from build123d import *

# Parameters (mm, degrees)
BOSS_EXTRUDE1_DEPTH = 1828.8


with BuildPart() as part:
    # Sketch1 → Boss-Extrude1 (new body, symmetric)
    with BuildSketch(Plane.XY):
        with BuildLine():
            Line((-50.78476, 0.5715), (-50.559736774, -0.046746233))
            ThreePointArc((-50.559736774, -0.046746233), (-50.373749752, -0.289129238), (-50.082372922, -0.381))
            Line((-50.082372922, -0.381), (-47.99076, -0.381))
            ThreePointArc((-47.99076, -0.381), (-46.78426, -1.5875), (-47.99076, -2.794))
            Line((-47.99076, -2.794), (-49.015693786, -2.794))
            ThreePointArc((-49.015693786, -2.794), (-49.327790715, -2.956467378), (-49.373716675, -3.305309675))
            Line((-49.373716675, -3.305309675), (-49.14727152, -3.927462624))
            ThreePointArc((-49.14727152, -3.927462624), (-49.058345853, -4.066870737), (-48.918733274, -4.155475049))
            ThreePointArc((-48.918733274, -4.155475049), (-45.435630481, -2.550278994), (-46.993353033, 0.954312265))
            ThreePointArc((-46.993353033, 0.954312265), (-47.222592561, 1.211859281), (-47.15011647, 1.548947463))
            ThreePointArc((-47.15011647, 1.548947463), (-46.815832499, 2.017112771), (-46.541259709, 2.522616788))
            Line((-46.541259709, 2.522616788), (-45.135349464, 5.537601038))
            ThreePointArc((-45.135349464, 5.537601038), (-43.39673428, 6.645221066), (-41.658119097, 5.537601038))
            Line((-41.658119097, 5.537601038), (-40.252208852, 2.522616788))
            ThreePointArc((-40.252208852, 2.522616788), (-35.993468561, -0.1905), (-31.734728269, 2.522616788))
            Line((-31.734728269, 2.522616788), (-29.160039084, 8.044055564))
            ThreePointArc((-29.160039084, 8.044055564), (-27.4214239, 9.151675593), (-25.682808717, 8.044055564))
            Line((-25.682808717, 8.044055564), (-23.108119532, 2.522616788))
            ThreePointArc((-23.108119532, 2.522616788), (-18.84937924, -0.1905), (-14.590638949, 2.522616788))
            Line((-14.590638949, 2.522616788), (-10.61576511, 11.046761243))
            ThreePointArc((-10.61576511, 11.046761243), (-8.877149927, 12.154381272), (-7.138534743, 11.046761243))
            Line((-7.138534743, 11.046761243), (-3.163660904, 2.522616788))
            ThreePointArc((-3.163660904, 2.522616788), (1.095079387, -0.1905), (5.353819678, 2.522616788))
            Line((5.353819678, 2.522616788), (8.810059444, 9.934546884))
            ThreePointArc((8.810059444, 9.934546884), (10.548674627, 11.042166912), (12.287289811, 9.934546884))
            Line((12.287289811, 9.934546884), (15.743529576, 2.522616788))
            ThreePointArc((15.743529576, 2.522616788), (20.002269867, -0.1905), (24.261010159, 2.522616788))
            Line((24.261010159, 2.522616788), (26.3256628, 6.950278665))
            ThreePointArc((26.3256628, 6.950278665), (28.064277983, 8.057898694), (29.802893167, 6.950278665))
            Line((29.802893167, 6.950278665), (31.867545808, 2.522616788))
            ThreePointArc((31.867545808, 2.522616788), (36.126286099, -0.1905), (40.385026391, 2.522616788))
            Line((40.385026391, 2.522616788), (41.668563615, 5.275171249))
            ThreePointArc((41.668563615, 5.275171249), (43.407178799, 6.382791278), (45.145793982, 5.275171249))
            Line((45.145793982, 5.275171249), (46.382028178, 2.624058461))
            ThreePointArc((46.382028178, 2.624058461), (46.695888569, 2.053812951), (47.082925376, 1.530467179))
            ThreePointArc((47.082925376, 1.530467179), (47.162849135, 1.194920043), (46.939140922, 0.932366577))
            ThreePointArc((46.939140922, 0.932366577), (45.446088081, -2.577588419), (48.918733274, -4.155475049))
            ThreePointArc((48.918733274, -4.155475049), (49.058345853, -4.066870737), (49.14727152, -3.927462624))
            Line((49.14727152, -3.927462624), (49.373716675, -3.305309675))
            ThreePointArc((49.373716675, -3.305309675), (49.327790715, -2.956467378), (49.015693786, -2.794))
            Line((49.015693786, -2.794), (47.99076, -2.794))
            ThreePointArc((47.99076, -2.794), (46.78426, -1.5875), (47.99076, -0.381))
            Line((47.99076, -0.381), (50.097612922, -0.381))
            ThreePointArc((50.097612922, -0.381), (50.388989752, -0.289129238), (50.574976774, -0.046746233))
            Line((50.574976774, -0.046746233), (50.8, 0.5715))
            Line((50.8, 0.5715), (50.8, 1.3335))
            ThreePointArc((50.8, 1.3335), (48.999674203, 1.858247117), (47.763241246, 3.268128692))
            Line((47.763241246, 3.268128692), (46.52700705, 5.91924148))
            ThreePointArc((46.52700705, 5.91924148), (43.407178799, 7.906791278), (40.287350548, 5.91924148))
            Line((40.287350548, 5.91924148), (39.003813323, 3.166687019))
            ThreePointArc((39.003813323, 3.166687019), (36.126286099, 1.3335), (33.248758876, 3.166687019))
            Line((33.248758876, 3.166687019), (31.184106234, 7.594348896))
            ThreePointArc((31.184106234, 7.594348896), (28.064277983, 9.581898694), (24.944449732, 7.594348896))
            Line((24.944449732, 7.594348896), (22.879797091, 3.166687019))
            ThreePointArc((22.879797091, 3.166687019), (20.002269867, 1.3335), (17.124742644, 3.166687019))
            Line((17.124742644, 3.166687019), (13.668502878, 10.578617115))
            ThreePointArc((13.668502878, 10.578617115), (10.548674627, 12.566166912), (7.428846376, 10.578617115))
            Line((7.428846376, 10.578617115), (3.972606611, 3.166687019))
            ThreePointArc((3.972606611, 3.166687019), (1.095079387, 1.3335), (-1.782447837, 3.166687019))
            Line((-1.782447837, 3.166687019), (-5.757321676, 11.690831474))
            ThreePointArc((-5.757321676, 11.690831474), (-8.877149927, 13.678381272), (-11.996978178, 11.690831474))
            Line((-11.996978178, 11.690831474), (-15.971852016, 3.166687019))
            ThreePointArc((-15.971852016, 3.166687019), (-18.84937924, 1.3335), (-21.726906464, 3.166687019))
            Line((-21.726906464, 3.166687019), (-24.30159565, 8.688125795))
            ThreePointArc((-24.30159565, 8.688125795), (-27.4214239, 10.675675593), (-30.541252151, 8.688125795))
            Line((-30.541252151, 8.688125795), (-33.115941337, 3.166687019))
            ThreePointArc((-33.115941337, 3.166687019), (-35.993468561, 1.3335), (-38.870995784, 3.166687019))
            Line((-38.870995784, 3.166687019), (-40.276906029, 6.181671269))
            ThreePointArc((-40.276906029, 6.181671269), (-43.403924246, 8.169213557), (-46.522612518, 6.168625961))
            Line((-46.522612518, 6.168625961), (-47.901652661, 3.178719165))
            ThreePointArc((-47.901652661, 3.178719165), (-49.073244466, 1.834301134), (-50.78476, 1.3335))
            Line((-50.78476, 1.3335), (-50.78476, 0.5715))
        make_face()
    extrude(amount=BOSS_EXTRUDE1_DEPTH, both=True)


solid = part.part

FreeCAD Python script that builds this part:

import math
import FreeCAD as App
import Part
import Sketcher
from FreeCAD import Vector
Q = App.Units.Quantity

doc = App.newDocument("Part")
body = doc.addObject("PartDesign::Body", "Body")

# Sketch on XY plane
sketch1 = body.newObject("Sketcher::SketchObject", "Sketch")
sketch1.AttachmentSupport = (doc.getObject("XY_Plane"), [""])
sketch1.MapMode = "FlatFace"
sketch1.addGeometry(Part.LineSegment(Vector(-50.78, 0.57, 0), Vector(-50.56, -0.05, 0)), False)
sketch1.addGeometry(Part.ArcOfCircle(Part.Circle(Vector(-50.08, 0.13, 0), Vector(0, 0, 1), 0.51), math.radians(-160), math.radians(-90)), False)
sketch1.addGeometry(Part.LineSegment(Vector(-50.08, -0.38, 0), Vector(-47.99, -0.38, 0)), False)
sketch1.addGeometry(Part.ArcOfCircle(Part.Circle(Vector(-47.99, -1.59, 0), Vector(0, 0, 1), 1.21), math.radians(-90), math.radians(90)), False)
sketch1.addGeometry(Part.LineSegment(Vector(-47.99, -2.79, 0), Vector(-49.02, -2.79, 0)), False)
sketch1.addGeometry(Part.ArcOfCircle(Part.Circle(Vector(-49.02, -3.18, 0), Vector(0, 0, 1), 0.38), math.radians(90), math.radians(200)), False)
sketch1.addGeometry(Part.LineSegment(Vector(-49.37, -3.31, 0), Vector(-49.15, -3.93, 0)), False)
sketch1.addGeometry(Part.ArcOfCircle(Part.Circle(Vector(-48.79, -3.8, 0), Vector(0, 0, 1), 0.38), math.radians(-160), math.radians(-110)), False)
sketch1.addGeometry(Part.ArcOfCircle(Part.Circle(Vector(-47.99, -1.59, 0), Vector(0, 0, 1), 2.73), math.radians(-110), math.radians(69)), False)
sketch1.addGeometry(Part.ArcOfCircle(Part.Circle(Vector(-46.85, 1.31, 0), Vector(0, 0, 1), 0.38), math.radians(141), math.radians(249)), False)
sketch1.addGeometry(Part.ArcOfCircle(Part.Circle(Vector(-50.8, 4.51, 0), Vector(0, 0, 1), 4.7), math.radians(-39.04), math.radians(-25)), False)
sketch1.addGeometry(Part.LineSegment(Vector(-46.54, 2.52, 0), Vector(-45.14, 5.54, 0)), False)
sketch1.addGeometry(Part.ArcOfCircle(Part.Circle(Vector(-43.4, 4.73, 0), Vector(0, 0, 1), 1.92), math.radians(25), math.radians(155)), False)
sketch1.addGeometry(Part.LineSegment(Vector(-41.66, 5.54, 0), Vector(-40.25, 2.52, 0)), False)
sketch1.addGeometry(Part.ArcOfCircle(Part.Circle(Vector(-35.99, 4.51, 0), Vector(0, 0, 1), 4.7), math.radians(-155), math.radians(-25)), False)
sketch1.addGeometry(Part.LineSegment(Vector(-31.73, 2.52, 0), Vector(-29.16, 8.04, 0)), False)
sketch1.addGeometry(Part.ArcOfCircle(Part.Circle(Vector(-27.42, 7.23, 0), Vector(0, 0, 1), 1.92), math.radians(25), math.radians(155)), False)
sketch1.addGeometry(Part.LineSegment(Vector(-25.68, 8.04, 0), Vector(-23.11, 2.52, 0)), False)
sketch1.addGeometry(Part.ArcOfCircle(Part.Circle(Vector(-18.85, 4.51, 0), Vector(0, 0, 1), 4.7), math.radians(-155), math.radians(-25)), False)
sketch1.addGeometry(Part.LineSegment(Vector(-14.59, 2.52, 0), Vector(-10.62, 11.05, 0)), False)
sketch1.addGeometry(Part.ArcOfCircle(Part.Circle(Vector(-8.88, 10.24, 0), Vector(0, 0, 1), 1.92), math.radians(25), math.radians(155)), False)
sketch1.addGeometry(Part.LineSegment(Vector(-7.14, 11.05, 0), Vector(-3.16, 2.52, 0)), False)
sketch1.addGeometry(Part.ArcOfCircle(Part.Circle(Vector(1.1, 4.51, 0), Vector(0, 0, 1), 4.7), math.radians(-155), math.radians(-25)), False)
sketch1.addGeometry(Part.LineSegment(Vector(5.35, 2.52, 0), Vector(8.81, 9.93, 0)), False)
sketch1.addGeometry(Part.ArcOfCircle(Part.Circle(Vector(10.55, 9.12, 0), Vector(0, 0, 1), 1.92), math.radians(25), math.radians(155)), False)
sketch1.addGeometry(Part.LineSegment(Vector(12.29, 9.93, 0), Vector(15.74, 2.52, 0)), False)
sketch1.addGeometry(Part.ArcOfCircle(Part.Circle(Vector(20, 4.51, 0), Vector(0, 0, 1), 4.7), math.radians(-155), math.radians(-25)), False)
sketch1.addGeometry(Part.LineSegment(Vector(24.26, 2.52, 0), Vector(26.33, 6.95, 0)), False)
sketch1.addGeometry(Part.ArcOfCircle(Part.Circle(Vector(28.06, 6.14, 0), Vector(0, 0, 1), 1.92), math.radians(25), math.radians(155)), False)
sketch1.addGeometry(Part.LineSegment(Vector(29.8, 6.95, 0), Vector(31.87, 2.52, 0)), False)
sketch1.addGeometry(Part.ArcOfCircle(Part.Circle(Vector(36.13, 4.51, 0), Vector(0, 0, 1), 4.7), math.radians(-155), math.radians(-25)), False)
sketch1.addGeometry(Part.LineSegment(Vector(40.39, 2.52, 0), Vector(41.67, 5.28, 0)), False)
sketch1.addGeometry(Part.ArcOfCircle(Part.Circle(Vector(43.41, 4.46, 0), Vector(0, 0, 1), 1.92), math.radians(25), math.radians(155)), False)
sketch1.addGeometry(Part.LineSegment(Vector(45.15, 5.28, 0), Vector(46.38, 2.62, 0)), False)
sketch1.addGeometry(Part.ArcOfCircle(Part.Circle(Vector(50.8, 4.68, 0), Vector(0, 0, 1), 4.87), math.radians(-155), math.radians(-139.69)), False)
sketch1.addGeometry(Part.ArcOfCircle(Part.Circle(Vector(46.79, 1.28, 0), Vector(0, 0, 1), 0.38), math.radians(-67), math.radians(40)), False)
sketch1.addGeometry(Part.ArcOfCircle(Part.Circle(Vector(47.99, -1.59, 0), Vector(0, 0, 1), 2.73), math.radians(113), math.radians(290)), False)
sketch1.addGeometry(Part.ArcOfCircle(Part.Circle(Vector(48.79, -3.8, 0), Vector(0, 0, 1), 0.38), math.radians(-70), math.radians(-20)), False)
sketch1.addGeometry(Part.LineSegment(Vector(49.15, -3.93, 0), Vector(49.37, -3.31, 0)), False)
sketch1.addGeometry(Part.ArcOfCircle(Part.Circle(Vector(49.02, -3.18, 0), Vector(0, 0, 1), 0.38), math.radians(-20), math.radians(90)), False)
sketch1.addGeometry(Part.LineSegment(Vector(49.02, -2.79, 0), Vector(47.99, -2.79, 0)), False)
sketch1.addGeometry(Part.ArcOfCircle(Part.Circle(Vector(47.99, -1.59, 0), Vector(0, 0, 1), 1.21), math.radians(90), math.radians(270)), False)
sketch1.addGeometry(Part.LineSegment(Vector(47.99, -0.38, 0), Vector(50.1, -0.38, 0)), False)
sketch1.addGeometry(Part.ArcOfCircle(Part.Circle(Vector(50.1, 0.13, 0), Vector(0, 0, 1), 0.51), math.radians(-90), math.radians(-20)), False)
sketch1.addGeometry(Part.LineSegment(Vector(50.57, -0.05, 0), Vector(50.8, 0.57, 0)), False)
sketch1.addGeometry(Part.LineSegment(Vector(50.8, 0.57, 0), Vector(50.8, 1.33, 0)), False)
sketch1.addGeometry(Part.ArcOfCircle(Part.Circle(Vector(50.8, 4.68, 0), Vector(0, 0, 1), 3.35), math.radians(-155), math.radians(-90)), False)
sketch1.addGeometry(Part.LineSegment(Vector(47.76, 3.27, 0), Vector(46.53, 5.92, 0)), False)
sketch1.addGeometry(Part.ArcOfCircle(Part.Circle(Vector(43.41, 4.46, 0), Vector(0, 0, 1), 3.44), math.radians(25), math.radians(155)), False)
sketch1.addGeometry(Part.LineSegment(Vector(40.29, 5.92, 0), Vector(39, 3.17, 0)), False)
sketch1.addGeometry(Part.ArcOfCircle(Part.Circle(Vector(36.13, 4.51, 0), Vector(0, 0, 1), 3.17), math.radians(-155), math.radians(-25)), False)
sketch1.addGeometry(Part.LineSegment(Vector(33.25, 3.17, 0), Vector(31.18, 7.59, 0)), False)
sketch1.addGeometry(Part.ArcOfCircle(Part.Circle(Vector(28.06, 6.14, 0), Vector(0, 0, 1), 3.44), math.radians(25), math.radians(155)), False)
sketch1.addGeometry(Part.LineSegment(Vector(24.94, 7.59, 0), Vector(22.88, 3.17, 0)), False)
sketch1.addGeometry(Part.ArcOfCircle(Part.Circle(Vector(20, 4.51, 0), Vector(0, 0, 1), 3.17), math.radians(-155), math.radians(-25)), False)
sketch1.addGeometry(Part.LineSegment(Vector(17.12, 3.17, 0), Vector(13.67, 10.58, 0)), False)
sketch1.addGeometry(Part.ArcOfCircle(Part.Circle(Vector(10.55, 9.12, 0), Vector(0, 0, 1), 3.44), math.radians(25), math.radians(155)), False)
sketch1.addGeometry(Part.LineSegment(Vector(7.43, 10.58, 0), Vector(3.97, 3.17, 0)), False)
sketch1.addGeometry(Part.ArcOfCircle(Part.Circle(Vector(1.1, 4.51, 0), Vector(0, 0, 1), 3.17), math.radians(-155), math.radians(-25)), False)
sketch1.addGeometry(Part.LineSegment(Vector(-1.78, 3.17, 0), Vector(-5.76, 11.69, 0)), False)
sketch1.addGeometry(Part.ArcOfCircle(Part.Circle(Vector(-8.88, 10.24, 0), Vector(0, 0, 1), 3.44), math.radians(25), math.radians(155)), False)
sketch1.addGeometry(Part.LineSegment(Vector(-12, 11.69, 0), Vector(-15.97, 3.17, 0)), False)
sketch1.addGeometry(Part.ArcOfCircle(Part.Circle(Vector(-18.85, 4.51, 0), Vector(0, 0, 1), 3.17), math.radians(-155), math.radians(-25)), False)
sketch1.addGeometry(Part.LineSegment(Vector(-21.73, 3.17, 0), Vector(-24.3, 8.69, 0)), False)
sketch1.addGeometry(Part.ArcOfCircle(Part.Circle(Vector(-27.42, 7.23, 0), Vector(0, 0, 1), 3.44), math.radians(25), math.radians(155)), False)
sketch1.addGeometry(Part.LineSegment(Vector(-30.54, 8.69, 0), Vector(-33.12, 3.17, 0)), False)
sketch1.addGeometry(Part.ArcOfCircle(Part.Circle(Vector(-35.99, 4.51, 0), Vector(0, 0, 1), 3.17), math.radians(-155), math.radians(-25)), False)
sketch1.addGeometry(Part.LineSegment(Vector(-38.87, 3.17, 0), Vector(-40.28, 6.18, 0)), False)
sketch1.addGeometry(Part.ArcOfCircle(Part.Circle(Vector(-43.4, 4.73, 0), Vector(0, 0, 1), 3.44), math.radians(25), math.radians(155)), False)
sketch1.addGeometry(Part.LineSegment(Vector(-46.52, 6.17, 0), Vector(-47.9, 3.18, 0)), False)
sketch1.addGeometry(Part.ArcOfCircle(Part.Circle(Vector(-50.78, 4.51, 0), Vector(0, 0, 1), 3.17), math.radians(-90), math.radians(-25)), False)
sketch1.addGeometry(Part.LineSegment(Vector(-50.78, 1.33, 0), Vector(-50.78, 0.57, 0)), False)
sketch1.addConstraint(Sketcher.Constraint("Tangent", 0, 2, 1, 1))
sketch1.addConstraint(Sketcher.Constraint("Tangent", 1, 2, 2, 1))
sketch1.addConstraint(Sketcher.Constraint("Tangent", 2, 2, 3, 2))
sketch1.addConstraint(Sketcher.Constraint("Tangent", 3, 1, 4, 1))
sketch1.addConstraint(Sketcher.Constraint("Tangent", 4, 2, 5, 1))
sketch1.addConstraint(Sketcher.Constraint("Tangent", 5, 2, 6, 1))
sketch1.addConstraint(Sketcher.Constraint("Tangent", 6, 2, 7, 1))
sketch1.addConstraint(Sketcher.Constraint("Tangent", 7, 2, 8, 1))
sketch1.addConstraint(Sketcher.Constraint("Tangent", 8, 2, 9, 2))
sketch1.addConstraint(Sketcher.Constraint("Tangent", 9, 1, 10, 1))
sketch1.addConstraint(Sketcher.Constraint("Tangent", 10, 2, 11, 1))
sketch1.addConstraint(Sketcher.Constraint("Tangent", 11, 2, 12, 2))
sketch1.addConstraint(Sketcher.Constraint("Tangent", 12, 1, 13, 1))
sketch1.addConstraint(Sketcher.Constraint("Tangent", 13, 2, 14, 1))
sketch1.addConstraint(Sketcher.Constraint("Tangent", 14, 2, 15, 1))
sketch1.addConstraint(Sketcher.Constraint("Tangent", 15, 2, 16, 2))
sketch1.addConstraint(Sketcher.Constraint("Tangent", 16, 1, 17, 1))
sketch1.addConstraint(Sketcher.Constraint("Tangent", 17, 2, 18, 1))
sketch1.addConstraint(Sketcher.Constraint("Tangent", 18, 2, 19, 1))
sketch1.addConstraint(Sketcher.Constraint("Tangent", 19, 2, 20, 2))
sketch1.addConstraint(Sketcher.Constraint("Tangent", 20, 1, 21, 1))
sketch1.addConstraint(Sketcher.Constraint("Tangent", 21, 2, 22, 1))
sketch1.addConstraint(Sketcher.Constraint("Tangent", 22, 2, 23, 1))
sketch1.addConstraint(Sketcher.Constraint("Tangent", 23, 2, 24, 2))
sketch1.addConstraint(Sketcher.Constraint("Tangent", 24, 1, 25, 1))
sketch1.addConstraint(Sketcher.Constraint("Tangent", 25, 2, 26, 1))
sketch1.addConstraint(Sketcher.Constraint("Tangent", 26, 2, 27, 1))
sketch1.addConstraint(Sketcher.Constraint("Tangent", 27, 2, 28, 2))
sketch1.addConstraint(Sketcher.Constraint("Tangent", 28, 1, 29, 1))
sketch1.addConstraint(Sketcher.Constraint("Tangent", 29, 2, 30, 1))
sketch1.addConstraint(Sketcher.Constraint("Tangent", 30, 2, 31, 1))
sketch1.addConstraint(Sketcher.Constraint("Tangent", 31, 2, 32, 2))
sketch1.addConstraint(Sketcher.Constraint("Tangent", 32, 1, 33, 1))
sketch1.addConstraint(Sketcher.Constraint("Tangent", 33, 2, 34, 1))
sketch1.addConstraint(Sketcher.Constraint("Tangent", 34, 2, 35, 2))
sketch1.addConstraint(Sketcher.Constraint("Tangent", 35, 1, 36, 1))
sketch1.addConstraint(Sketcher.Constraint("Tangent", 36, 2, 37, 1))
sketch1.addConstraint(Sketcher.Constraint("Tangent", 37, 2, 38, 1))
sketch1.addConstraint(Sketcher.Constraint("Tangent", 38, 2, 39, 1))
sketch1.addConstraint(Sketcher.Constraint("Tangent", 39, 2, 40, 1))
sketch1.addConstraint(Sketcher.Constraint("Tangent", 40, 2, 41, 2))
sketch1.addConstraint(Sketcher.Constraint("Tangent", 41, 1, 42, 1))
sketch1.addConstraint(Sketcher.Constraint("Tangent", 42, 2, 43, 1))
sketch1.addConstraint(Sketcher.Constraint("Tangent", 43, 2, 44, 1))
sketch1.addConstraint(Sketcher.Constraint("Coincident", 44, 2, 45, 1))
sketch1.addConstraint(Sketcher.Constraint("Coincident", 45, 2, 46, 2))
sketch1.addConstraint(Sketcher.Constraint("Tangent", 46, 1, 47, 1))
sketch1.addConstraint(Sketcher.Constraint("Tangent", 47, 2, 48, 1))
sketch1.addConstraint(Sketcher.Constraint("Tangent", 48, 2, 49, 1))
sketch1.addConstraint(Sketcher.Constraint("Tangent", 49, 2, 50, 2))
sketch1.addConstraint(Sketcher.Constraint("Tangent", 50, 1, 51, 1))
sketch1.addConstraint(Sketcher.Constraint("Tangent", 51, 2, 52, 1))
sketch1.addConstraint(Sketcher.Constraint("Tangent", 52, 2, 53, 1))
sketch1.addConstraint(Sketcher.Constraint("Tangent", 53, 2, 54, 2))
sketch1.addConstraint(Sketcher.Constraint("Tangent", 54, 1, 55, 1))
sketch1.addConstraint(Sketcher.Constraint("Tangent", 55, 2, 56, 1))
sketch1.addConstraint(Sketcher.Constraint("Tangent", 56, 2, 57, 1))
sketch1.addConstraint(Sketcher.Constraint("Tangent", 57, 2, 58, 2))
sketch1.addConstraint(Sketcher.Constraint("Tangent", 58, 1, 59, 1))
sketch1.addConstraint(Sketcher.Constraint("Tangent", 59, 2, 60, 1))
sketch1.addConstraint(Sketcher.Constraint("Tangent", 60, 2, 61, 1))
sketch1.addConstraint(Sketcher.Constraint("Tangent", 61, 2, 62, 2))
sketch1.addConstraint(Sketcher.Constraint("Tangent", 62, 1, 63, 1))
sketch1.addConstraint(Sketcher.Constraint("Tangent", 63, 2, 64, 1))
sketch1.addConstraint(Sketcher.Constraint("Tangent", 64, 2, 65, 1))
sketch1.addConstraint(Sketcher.Constraint("Tangent", 65, 2, 66, 2))
sketch1.addConstraint(Sketcher.Constraint("Tangent", 66, 1, 67, 1))
sketch1.addConstraint(Sketcher.Constraint("Tangent", 67, 2, 68, 1))
sketch1.addConstraint(Sketcher.Constraint("Tangent", 68, 2, 69, 1))
sketch1.addConstraint(Sketcher.Constraint("Tangent", 69, 2, 70, 2))
sketch1.addConstraint(Sketcher.Constraint("Coincident", 70, 1, 71, 1))
sketch1.addConstraint(Sketcher.Constraint("Coincident", 71, 2, 0, 1))
sketch1.addConstraint(Sketcher.Constraint("Horizontal", 2))
sketch1.addConstraint(Sketcher.Constraint("Horizontal", 4))
sketch1.addConstraint(Sketcher.Constraint("Horizontal", 40))
sketch1.addConstraint(Sketcher.Constraint("Horizontal", 42))
sketch1.addConstraint(Sketcher.Constraint("Vertical", 45))
sketch1.addConstraint(Sketcher.Constraint("Vertical", 71))
sketch1.addConstraint(Sketcher.Constraint("Coincident", 8, 3, 3, 3))
sketch1.addConstraint(Sketcher.Constraint("Coincident", 41, 3, 36, 3))
sketch1.addConstraint(Sketcher.Constraint("Coincident", 46, 3, 34, 3))
sketch1.addConstraint(Sketcher.Constraint("Coincident", 48, 3, 32, 3))
sketch1.addConstraint(Sketcher.Constraint("Coincident", 50, 3, 30, 3))
sketch1.addConstraint(Sketcher.Constraint("Coincident", 52, 3, 28, 3))
sketch1.addConstraint(Sketcher.Constraint("Coincident", 54, 3, 26, 3))
sketch1.addConstraint(Sketcher.Constraint("Coincident", 56, 3, 24, 3))
sketch1.addConstraint(Sketcher.Constraint("Coincident", 58, 3, 22, 3))
sketch1.addConstraint(Sketcher.Constraint("Coincident", 60, 3, 20, 3))
sketch1.addConstraint(Sketcher.Constraint("Coincident", 62, 3, 18, 3))
sketch1.addConstraint(Sketcher.Constraint("Coincident", 64, 3, 16, 3))
sketch1.addConstraint(Sketcher.Constraint("Coincident", 66, 3, 14, 3))
sketch1.addConstraint(Sketcher.Constraint("Coincident", 68, 3, 12, 3))
sketch1.addConstraint(Sketcher.Constraint("Equal", 5, 7))
sketch1.addConstraint(Sketcher.Constraint("Equal", 7, 9))
sketch1.addConstraint(Sketcher.Constraint("Equal", 10, 14))
sketch1.addConstraint(Sketcher.Constraint("Equal", 12, 16))
sketch1.addConstraint(Sketcher.Constraint("Equal", 14, 18))
sketch1.addConstraint(Sketcher.Constraint("Equal", 16, 20))
sketch1.addConstraint(Sketcher.Constraint("Equal", 18, 22))
sketch1.addConstraint(Sketcher.Constraint("Equal", 20, 24))
sketch1.addConstraint(Sketcher.Constraint("Equal", 22, 26))
sketch1.addConstraint(Sketcher.Constraint("Equal", 24, 28))
sketch1.addConstraint(Sketcher.Constraint("Equal", 26, 30))
sketch1.addConstraint(Sketcher.Constraint("Equal", 28, 32))
sketch1.addConstraint(Sketcher.Constraint("Equal", 9, 35))
sketch1.addConstraint(Sketcher.Constraint("Equal", 8, 36))
sketch1.addConstraint(Sketcher.Constraint("Equal", 35, 37))
sketch1.addConstraint(Sketcher.Constraint("Equal", 37, 39))
sketch1.addConstraint(Sketcher.Constraint("Equal", 3, 41))
sketch1.addConstraint(Sketcher.Constraint("Equal", 1, 43))
sketch1.addConstraint(Sketcher.Constraint("Equal", 48, 52))
sketch1.addConstraint(Sketcher.Constraint("Equal", 50, 54))
sketch1.addConstraint(Sketcher.Constraint("Equal", 52, 56))
sketch1.addConstraint(Sketcher.Constraint("Equal", 54, 58))
sketch1.addConstraint(Sketcher.Constraint("Equal", 56, 60))
sketch1.addConstraint(Sketcher.Constraint("Equal", 58, 62))
sketch1.addConstraint(Sketcher.Constraint("Equal", 60, 64))
sketch1.addConstraint(Sketcher.Constraint("Equal", 62, 66))
sketch1.addConstraint(Sketcher.Constraint("Equal", 64, 68))
sketch1.addConstraint(Sketcher.Constraint("Equal", 66, 70))
sketch1.addConstraint(Sketcher.Constraint("Symmetric", 3, 3, 36, 3, -2))
sketch1.addConstraint(Sketcher.Constraint("Symmetric", 6, 2, 37, 2, -2))
sketch1.addConstraint(Sketcher.Constraint("Parallel", 0, 6))
sketch1.addConstraint(Sketcher.Constraint("Parallel", 11, 15))
sketch1.addConstraint(Sketcher.Constraint("Parallel", 13, 17))
sketch1.addConstraint(Sketcher.Constraint("Parallel", 15, 19))
sketch1.addConstraint(Sketcher.Constraint("Parallel", 17, 21))
sketch1.addConstraint(Sketcher.Constraint("Parallel", 19, 23))
sketch1.addConstraint(Sketcher.Constraint("Parallel", 21, 25))
sketch1.addConstraint(Sketcher.Constraint("Parallel", 23, 27))
sketch1.addConstraint(Sketcher.Constraint("Parallel", 25, 29))
sketch1.addConstraint(Sketcher.Constraint("Parallel", 27, 31))
sketch1.addConstraint(Sketcher.Constraint("Parallel", 29, 33))
sketch1.addConstraint(Sketcher.Constraint("Parallel", 38, 44))
sketch1.addConstraint(Sketcher.Constraint("Parallel", 33, 47))
sketch1.addConstraint(Sketcher.Constraint("Parallel", 31, 49))
sketch1.addConstraint(Sketcher.Constraint("Horizontal", 10, 3, 14, 3))
sketch1.addConstraint(Sketcher.Constraint("Horizontal", 14, 3, 18, 3))
sketch1.addConstraint(Sketcher.Constraint("Horizontal", 18, 3, 22, 3))
sketch1.addConstraint(Sketcher.Constraint("Horizontal", 22, 3, 26, 3))
sketch1.addConstraint(Sketcher.Constraint("Horizontal", 26, 3, 30, 3))
sketch1.addConstraint(Sketcher.Constraint("Horizontal", 66, 3, 70, 3))
sketch1.addConstraint(Sketcher.Constraint("Horizontal", 11, 2, 12, 1))
sketch1.addConstraint(Sketcher.Constraint("Horizontal", 45, 2, 70, 1))
sketch1.addConstraint(Sketcher.Constraint("Horizontal", 44, 2, 71, 2))
sketch1.addConstraint(Sketcher.Constraint("Vertical", 46, 3, 44, 2))
sketch1.addConstraint(Sketcher.Constraint("Radius", 1, Q("0.02 in")))
sketch1.addConstraint(Sketcher.Constraint("DistanceX", 10, 3, -1, 1, Q("2 in")))
sketch1.addConstraint(Sketcher.Constraint("DistanceX", -1, 1, 34, 3, Q("2 in")))
sketch1.addConstraint(Sketcher.Constraint("Angle", 0, Q("-70 deg")))
sketch1.addConstraint(Sketcher.Constraint("Angle", 11, Q("65 deg")))
sketch1.addConstraint(Sketcher.Constraint("Radius", 5, Q("0.015 in")))
sketch1.addConstraint(Sketcher.Constraint("Radius", 10, Q("0.185 in")))
sketch1.addConstraint(Sketcher.Constraint("Radius", 50, Q("0.125 in")))
sketch1.addConstraint(Sketcher.Constraint("DistanceY", 45, 1, 45, 2, Q("0.03 in")))
sketch1.addConstraint(Sketcher.Constraint("Radius", 3, Q("0.0475 in")))
sketch1.addConstraint(Sketcher.Constraint("Radius", 8, Q("0.1075 in")))
sketch1.addConstraint(Sketcher.Constraint("DistanceY", 3, 1, -1, 1, Q("0.11 in")))
sketch1.addConstraint(Sketcher.Constraint("Radius", 12, 1.91835))
sketch1.addConstraint(Sketcher.Constraint("DistanceX", 3, 3, -1, 1, Q("1.8894 in")))
sketch1.addConstraint(Sketcher.Constraint("DistanceY", -1, 1, 10, 3, Q("0.1775 in")))
sketch1.addConstraint(Sketcher.Constraint("DistanceX", 70, 3, -1, 1, Q("1.9994 in")))
sketch1.addConstraint(Sketcher.Constraint("DistanceX", 70, 1, -1, 1, Q("1.9994 in")))
sketch1.addConstraint(Sketcher.Constraint("Radius", 34, 4.874693))
sketch1.addConstraint(Sketcher.Constraint("DistanceY", -1, 1, 11, 2, 5.537601))
sketch1.addConstraint(Sketcher.Constraint("Distance", 6, 0.662081))
sketch1.addConstraint(Sketcher.Constraint("Distance", 23, 8.17816))
sketch1.addConstraint(Sketcher.Constraint("Distance", 33, 2.925179))
sketch1.addConstraint(Sketcher.Constraint("DistanceX", 18, 3, -1, 1, 18.849379))
sketch1.addConstraint(Sketcher.Constraint("DistanceX", 20, 3, -1, 1, 8.87715))
pad1 = body.newObject("PartDesign::Pad", "Pad")
pad1.Profile = sketch1
pad1.Length = Q("144 in")
pad1.Midplane = True

doc.recompute()
